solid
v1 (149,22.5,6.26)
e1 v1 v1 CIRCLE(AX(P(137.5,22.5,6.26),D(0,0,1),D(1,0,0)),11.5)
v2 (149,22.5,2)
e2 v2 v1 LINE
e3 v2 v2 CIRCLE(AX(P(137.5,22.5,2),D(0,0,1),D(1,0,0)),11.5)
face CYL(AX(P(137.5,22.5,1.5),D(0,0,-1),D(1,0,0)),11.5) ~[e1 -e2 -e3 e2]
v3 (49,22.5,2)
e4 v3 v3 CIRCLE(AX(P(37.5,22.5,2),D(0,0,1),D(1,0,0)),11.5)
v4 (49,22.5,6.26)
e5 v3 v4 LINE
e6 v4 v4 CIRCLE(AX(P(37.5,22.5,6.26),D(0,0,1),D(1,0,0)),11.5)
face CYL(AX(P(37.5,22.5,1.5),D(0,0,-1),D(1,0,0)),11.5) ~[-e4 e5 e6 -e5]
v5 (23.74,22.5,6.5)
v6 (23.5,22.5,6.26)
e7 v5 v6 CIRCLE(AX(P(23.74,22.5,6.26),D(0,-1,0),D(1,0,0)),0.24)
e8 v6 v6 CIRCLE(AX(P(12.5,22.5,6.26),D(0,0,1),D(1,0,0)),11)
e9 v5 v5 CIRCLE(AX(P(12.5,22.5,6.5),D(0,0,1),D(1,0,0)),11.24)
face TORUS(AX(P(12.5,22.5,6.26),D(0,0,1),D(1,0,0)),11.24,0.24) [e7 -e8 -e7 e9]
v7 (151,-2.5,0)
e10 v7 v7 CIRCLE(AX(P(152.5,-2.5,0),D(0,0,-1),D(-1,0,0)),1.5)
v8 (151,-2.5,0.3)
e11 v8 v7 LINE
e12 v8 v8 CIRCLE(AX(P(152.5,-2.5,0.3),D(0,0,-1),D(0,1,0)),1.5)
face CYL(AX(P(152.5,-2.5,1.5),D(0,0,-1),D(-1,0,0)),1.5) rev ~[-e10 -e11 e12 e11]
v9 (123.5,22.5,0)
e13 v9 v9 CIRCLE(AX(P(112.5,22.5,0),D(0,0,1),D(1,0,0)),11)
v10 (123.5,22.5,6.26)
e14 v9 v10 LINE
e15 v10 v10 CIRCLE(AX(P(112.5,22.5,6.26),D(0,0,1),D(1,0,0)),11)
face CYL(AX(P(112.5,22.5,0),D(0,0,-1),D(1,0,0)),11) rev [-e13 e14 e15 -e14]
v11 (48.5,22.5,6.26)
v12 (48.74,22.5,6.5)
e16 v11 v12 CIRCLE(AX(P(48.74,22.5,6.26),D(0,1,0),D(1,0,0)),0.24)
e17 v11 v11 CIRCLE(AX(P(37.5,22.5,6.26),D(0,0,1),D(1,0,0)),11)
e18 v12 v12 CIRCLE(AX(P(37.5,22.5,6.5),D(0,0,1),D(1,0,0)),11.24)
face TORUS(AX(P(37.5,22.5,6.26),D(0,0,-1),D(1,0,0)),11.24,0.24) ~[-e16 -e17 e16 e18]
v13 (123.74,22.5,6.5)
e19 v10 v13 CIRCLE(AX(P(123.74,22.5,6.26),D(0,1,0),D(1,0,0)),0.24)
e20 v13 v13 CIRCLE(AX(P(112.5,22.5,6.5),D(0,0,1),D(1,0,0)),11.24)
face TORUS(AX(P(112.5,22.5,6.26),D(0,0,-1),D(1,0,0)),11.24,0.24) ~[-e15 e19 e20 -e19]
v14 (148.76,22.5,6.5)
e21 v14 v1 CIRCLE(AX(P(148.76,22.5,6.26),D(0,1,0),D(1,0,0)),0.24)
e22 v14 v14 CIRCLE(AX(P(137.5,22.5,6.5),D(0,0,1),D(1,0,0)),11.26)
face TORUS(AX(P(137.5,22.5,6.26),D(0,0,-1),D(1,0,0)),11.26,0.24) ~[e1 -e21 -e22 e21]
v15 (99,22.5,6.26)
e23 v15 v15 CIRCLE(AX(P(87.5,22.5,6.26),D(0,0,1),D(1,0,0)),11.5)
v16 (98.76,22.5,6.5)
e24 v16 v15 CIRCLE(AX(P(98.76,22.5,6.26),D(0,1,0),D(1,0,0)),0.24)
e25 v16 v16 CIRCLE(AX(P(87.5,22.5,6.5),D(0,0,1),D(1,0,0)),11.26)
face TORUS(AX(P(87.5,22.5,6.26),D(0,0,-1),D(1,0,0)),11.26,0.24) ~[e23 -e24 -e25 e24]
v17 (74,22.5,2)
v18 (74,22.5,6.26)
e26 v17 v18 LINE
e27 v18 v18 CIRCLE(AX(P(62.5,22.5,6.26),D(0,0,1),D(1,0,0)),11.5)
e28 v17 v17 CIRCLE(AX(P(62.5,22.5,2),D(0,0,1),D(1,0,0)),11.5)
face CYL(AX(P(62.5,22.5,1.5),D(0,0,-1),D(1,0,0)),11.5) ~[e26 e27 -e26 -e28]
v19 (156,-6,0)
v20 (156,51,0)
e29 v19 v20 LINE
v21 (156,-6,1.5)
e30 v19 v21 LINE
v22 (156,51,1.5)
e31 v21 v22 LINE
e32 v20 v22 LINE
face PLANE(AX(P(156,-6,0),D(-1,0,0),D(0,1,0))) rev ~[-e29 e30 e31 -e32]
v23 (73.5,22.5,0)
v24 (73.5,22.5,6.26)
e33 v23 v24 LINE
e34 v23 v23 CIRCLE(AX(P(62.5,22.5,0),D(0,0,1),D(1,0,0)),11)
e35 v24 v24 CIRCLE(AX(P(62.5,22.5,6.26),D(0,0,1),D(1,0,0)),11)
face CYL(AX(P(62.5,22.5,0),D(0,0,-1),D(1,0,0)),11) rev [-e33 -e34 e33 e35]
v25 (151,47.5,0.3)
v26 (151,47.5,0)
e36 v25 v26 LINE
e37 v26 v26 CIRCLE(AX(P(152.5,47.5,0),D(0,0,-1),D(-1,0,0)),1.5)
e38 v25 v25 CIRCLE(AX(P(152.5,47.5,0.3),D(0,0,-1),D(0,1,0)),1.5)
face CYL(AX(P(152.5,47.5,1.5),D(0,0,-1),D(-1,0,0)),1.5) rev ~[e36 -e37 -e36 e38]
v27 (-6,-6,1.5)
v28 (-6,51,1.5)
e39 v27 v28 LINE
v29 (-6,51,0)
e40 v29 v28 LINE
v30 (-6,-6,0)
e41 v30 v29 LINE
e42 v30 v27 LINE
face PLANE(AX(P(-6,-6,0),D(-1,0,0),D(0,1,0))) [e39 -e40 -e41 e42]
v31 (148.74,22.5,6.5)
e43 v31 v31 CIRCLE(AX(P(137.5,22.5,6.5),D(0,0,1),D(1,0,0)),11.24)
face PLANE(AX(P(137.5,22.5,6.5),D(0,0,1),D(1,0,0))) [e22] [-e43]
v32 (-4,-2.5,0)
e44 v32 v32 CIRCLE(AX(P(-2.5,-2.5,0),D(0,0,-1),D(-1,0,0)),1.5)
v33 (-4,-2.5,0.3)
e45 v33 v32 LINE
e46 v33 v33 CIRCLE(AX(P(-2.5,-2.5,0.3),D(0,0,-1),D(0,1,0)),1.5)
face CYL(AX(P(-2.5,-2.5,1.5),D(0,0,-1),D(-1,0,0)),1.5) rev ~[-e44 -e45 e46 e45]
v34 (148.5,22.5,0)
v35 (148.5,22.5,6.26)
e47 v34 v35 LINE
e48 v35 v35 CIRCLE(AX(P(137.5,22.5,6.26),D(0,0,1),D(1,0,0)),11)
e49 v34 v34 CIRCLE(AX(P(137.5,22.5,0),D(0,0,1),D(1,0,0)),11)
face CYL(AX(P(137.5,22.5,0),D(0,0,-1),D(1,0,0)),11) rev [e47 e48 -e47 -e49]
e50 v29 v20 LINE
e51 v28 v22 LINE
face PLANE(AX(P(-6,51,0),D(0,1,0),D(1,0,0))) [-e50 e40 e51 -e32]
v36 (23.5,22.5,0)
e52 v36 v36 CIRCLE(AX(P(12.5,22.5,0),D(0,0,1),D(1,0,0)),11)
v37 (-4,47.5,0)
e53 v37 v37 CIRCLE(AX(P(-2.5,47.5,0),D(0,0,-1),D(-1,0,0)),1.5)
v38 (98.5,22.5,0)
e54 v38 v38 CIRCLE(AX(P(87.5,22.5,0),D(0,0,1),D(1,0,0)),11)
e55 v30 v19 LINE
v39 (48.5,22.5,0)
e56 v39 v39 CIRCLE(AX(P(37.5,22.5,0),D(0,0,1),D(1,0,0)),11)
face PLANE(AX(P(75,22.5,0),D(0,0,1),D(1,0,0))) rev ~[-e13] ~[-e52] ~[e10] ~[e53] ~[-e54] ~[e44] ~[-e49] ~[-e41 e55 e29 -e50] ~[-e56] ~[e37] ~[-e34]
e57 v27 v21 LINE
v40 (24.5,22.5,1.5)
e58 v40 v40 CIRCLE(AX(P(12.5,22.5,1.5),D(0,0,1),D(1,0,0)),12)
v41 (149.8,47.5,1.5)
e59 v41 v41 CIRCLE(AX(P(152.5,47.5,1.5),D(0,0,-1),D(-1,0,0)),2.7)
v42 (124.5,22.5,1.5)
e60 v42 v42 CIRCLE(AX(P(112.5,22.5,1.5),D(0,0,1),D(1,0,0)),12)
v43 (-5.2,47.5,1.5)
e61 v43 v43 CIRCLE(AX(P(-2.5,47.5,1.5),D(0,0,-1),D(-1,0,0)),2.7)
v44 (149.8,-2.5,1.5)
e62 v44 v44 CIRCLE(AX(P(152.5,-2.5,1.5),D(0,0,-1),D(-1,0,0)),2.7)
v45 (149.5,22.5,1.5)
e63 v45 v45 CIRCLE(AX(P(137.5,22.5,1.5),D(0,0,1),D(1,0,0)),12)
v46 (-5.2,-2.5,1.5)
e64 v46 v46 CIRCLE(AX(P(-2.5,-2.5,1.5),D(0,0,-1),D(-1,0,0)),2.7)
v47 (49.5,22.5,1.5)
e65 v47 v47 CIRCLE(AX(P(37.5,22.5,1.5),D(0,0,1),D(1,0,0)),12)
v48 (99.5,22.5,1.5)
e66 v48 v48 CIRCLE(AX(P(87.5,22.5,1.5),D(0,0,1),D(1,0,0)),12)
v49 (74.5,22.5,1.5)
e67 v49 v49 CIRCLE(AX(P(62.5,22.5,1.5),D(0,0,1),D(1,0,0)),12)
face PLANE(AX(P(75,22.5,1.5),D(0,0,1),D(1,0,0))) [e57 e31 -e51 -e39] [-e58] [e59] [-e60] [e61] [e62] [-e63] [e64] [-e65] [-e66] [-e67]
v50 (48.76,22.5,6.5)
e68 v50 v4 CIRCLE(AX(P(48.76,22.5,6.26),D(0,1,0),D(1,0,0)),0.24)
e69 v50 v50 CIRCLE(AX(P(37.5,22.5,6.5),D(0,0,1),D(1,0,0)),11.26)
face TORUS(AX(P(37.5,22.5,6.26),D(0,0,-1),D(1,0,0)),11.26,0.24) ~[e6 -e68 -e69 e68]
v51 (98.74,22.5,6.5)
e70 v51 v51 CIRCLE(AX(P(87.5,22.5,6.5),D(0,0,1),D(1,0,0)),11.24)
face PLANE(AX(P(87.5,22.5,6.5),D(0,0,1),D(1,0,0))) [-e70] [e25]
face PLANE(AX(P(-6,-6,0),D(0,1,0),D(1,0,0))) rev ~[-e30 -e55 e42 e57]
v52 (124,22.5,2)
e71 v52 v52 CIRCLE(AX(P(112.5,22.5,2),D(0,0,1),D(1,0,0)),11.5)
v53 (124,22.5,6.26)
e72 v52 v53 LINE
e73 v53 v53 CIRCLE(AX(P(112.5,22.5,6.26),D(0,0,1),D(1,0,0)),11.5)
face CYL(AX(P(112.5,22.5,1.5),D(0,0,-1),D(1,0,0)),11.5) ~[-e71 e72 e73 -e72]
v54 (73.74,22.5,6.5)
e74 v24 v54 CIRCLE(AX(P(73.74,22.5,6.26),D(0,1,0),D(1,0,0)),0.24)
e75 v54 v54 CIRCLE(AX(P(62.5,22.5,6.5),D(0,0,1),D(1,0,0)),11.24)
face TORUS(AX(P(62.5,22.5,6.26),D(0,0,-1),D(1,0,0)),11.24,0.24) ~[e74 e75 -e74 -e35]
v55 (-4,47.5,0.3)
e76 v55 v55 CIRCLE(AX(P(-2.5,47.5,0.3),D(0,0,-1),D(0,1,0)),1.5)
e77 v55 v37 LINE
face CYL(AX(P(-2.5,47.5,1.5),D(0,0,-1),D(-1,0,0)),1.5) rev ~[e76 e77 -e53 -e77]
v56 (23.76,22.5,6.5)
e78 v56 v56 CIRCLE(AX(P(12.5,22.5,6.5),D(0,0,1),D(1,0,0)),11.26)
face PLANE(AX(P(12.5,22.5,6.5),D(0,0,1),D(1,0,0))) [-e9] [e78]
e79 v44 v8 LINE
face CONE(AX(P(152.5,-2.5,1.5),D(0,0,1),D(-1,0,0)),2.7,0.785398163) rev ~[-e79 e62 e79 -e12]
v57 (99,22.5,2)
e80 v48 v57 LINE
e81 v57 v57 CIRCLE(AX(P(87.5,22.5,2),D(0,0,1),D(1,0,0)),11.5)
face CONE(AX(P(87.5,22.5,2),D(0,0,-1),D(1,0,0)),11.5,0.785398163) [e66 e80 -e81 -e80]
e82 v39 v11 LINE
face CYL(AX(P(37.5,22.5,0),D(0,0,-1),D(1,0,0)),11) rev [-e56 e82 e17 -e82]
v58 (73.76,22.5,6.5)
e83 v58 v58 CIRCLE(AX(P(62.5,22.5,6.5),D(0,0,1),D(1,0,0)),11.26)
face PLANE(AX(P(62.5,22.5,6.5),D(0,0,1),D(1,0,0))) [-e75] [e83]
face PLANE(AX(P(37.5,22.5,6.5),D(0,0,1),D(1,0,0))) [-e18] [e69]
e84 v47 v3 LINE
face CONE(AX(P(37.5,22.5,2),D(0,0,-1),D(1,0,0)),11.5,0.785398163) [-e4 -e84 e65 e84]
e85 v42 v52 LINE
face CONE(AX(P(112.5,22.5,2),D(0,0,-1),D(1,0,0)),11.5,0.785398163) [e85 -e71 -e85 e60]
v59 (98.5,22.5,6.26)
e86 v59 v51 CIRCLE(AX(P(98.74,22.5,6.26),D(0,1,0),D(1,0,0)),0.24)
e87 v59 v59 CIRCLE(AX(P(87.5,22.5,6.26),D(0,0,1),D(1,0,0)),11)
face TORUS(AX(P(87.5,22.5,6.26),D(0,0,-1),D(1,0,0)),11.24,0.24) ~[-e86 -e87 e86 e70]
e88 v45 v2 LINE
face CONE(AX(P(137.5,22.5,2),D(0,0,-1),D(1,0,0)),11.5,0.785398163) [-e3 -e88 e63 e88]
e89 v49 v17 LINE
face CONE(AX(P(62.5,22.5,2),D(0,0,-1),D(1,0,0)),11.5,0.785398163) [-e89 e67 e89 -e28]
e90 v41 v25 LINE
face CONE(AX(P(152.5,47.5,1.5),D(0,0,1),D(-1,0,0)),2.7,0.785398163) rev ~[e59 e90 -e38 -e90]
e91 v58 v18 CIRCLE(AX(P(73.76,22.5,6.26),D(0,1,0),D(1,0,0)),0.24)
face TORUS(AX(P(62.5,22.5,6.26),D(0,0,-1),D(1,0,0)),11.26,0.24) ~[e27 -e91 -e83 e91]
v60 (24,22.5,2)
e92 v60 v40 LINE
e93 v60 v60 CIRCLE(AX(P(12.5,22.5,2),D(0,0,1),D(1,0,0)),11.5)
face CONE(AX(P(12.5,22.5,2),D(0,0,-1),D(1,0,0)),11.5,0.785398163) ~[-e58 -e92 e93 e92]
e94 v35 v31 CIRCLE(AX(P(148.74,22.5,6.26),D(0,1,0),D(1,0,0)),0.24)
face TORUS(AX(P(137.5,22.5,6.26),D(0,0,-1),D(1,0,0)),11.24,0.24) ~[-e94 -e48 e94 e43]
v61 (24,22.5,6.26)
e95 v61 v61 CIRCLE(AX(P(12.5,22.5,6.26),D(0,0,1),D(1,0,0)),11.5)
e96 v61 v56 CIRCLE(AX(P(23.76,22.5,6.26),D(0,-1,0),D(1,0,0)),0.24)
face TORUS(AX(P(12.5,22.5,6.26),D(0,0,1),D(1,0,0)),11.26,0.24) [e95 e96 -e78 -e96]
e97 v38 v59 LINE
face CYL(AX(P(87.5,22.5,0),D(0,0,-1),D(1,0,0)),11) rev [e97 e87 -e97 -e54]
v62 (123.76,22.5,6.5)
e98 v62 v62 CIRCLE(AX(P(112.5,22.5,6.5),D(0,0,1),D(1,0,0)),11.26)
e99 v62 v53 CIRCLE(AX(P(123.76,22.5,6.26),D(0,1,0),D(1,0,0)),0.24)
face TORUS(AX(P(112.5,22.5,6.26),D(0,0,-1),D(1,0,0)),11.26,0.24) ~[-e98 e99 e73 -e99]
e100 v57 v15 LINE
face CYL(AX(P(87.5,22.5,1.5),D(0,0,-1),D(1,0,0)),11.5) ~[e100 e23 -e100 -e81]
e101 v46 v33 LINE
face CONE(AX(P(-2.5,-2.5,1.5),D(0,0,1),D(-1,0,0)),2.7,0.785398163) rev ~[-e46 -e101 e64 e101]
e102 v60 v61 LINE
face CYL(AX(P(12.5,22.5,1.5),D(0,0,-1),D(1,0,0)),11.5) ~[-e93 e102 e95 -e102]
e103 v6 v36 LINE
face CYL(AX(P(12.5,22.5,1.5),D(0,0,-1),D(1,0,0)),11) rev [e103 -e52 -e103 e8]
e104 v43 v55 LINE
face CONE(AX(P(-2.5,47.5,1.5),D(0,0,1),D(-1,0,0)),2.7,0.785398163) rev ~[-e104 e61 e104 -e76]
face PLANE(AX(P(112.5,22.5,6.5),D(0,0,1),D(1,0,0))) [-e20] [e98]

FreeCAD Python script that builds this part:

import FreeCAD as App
import Part
import Sketcher
Q = App.Units.Quantity


def edges_at(feature, points):
    """Names of the edges that pass closest to the given points."""
    edges = feature.Shape.Edges
    near = lambda p: min(range(len(edges)), key=lambda i: edges[i].distToShape(Part.Vertex(*p))[0])
    return sorted({f"Edge{near(p) + 1}" for p in points})

doc = App.newDocument("Part")
body = doc.addObject("PartDesign::Body", "Body")

# Sketch on XY plane
sketch1 = body.newObject("Sketcher::SketchObject", "Sketch")
sketch1.AttachmentSupport = (doc.getObject("XY_Plane"), [""])
sketch1.MapMode = "FlatFace"
sketch1.addGeometry(Part.LineSegment(App.Vector(-6, 51, 0), App.Vector(-6, -6, 0)), False)
sketch1.addGeometry(Part.LineSegment(App.Vector(-6, -6, 0), App.Vector(156, -6, 0)), False)
sketch1.addGeometry(Part.LineSegment(App.Vector(156, -6, 0), App.Vector(156, 51, 0)), False)
sketch1.addGeometry(Part.LineSegment(App.Vector(156, 51, 0), App.Vector(-6, 51, 0)), False)
sketch1.addGeometry(Part.Circle(App.Vector(12.5, 22.5, 0), App.Vector(0, 0, 1), 11), False)
sketch1.addGeometry(Part.Circle(App.Vector(37.5, 22.5, 0), App.Vector(0, 0, 1), 11), False)
sketch1.addGeometry(Part.Circle(App.Vector(62.5, 22.5, 0), App.Vector(0, 0, 1), 11), False)
sketch1.addGeometry(Part.Circle(App.Vector(87.5, 22.5, 0), App.Vector(0, 0, 1), 11), False)
sketch1.addGeometry(Part.Circle(App.Vector(112.5, 22.5, 0), App.Vector(0, 0, 1), 11), False)
sketch1.addGeometry(Part.Circle(App.Vector(137.5, 22.5, 0), App.Vector(0, 0, 1), 11), False)
sketch1.addConstraint(Sketcher.Constraint("Coincident", 0, 2, 1, 1))
sketch1.addConstraint(Sketcher.Constraint("Coincident", 1, 2, 2, 1))
sketch1.addConstraint(Sketcher.Constraint("Coincident", 2, 2, 3, 1))
sketch1.addConstraint(Sketcher.Constraint("Coincident", 3, 2, 0, 1))
sketch1.addConstraint(Sketcher.Constraint("Vertical", 0))
sketch1.addConstraint(Sketcher.Constraint("Horizontal", 1))
sketch1.addConstraint(Sketcher.Constraint("Vertical", 2))
sketch1.addConstraint(Sketcher.Constraint("Horizontal", 3))
sketch1.addConstraint(Sketcher.Constraint("Equal", 4, 5))
sketch1.addConstraint(Sketcher.Constraint("Equal", 5, 6))
sketch1.addConstraint(Sketcher.Constraint("Equal", 6, 7))
sketch1.addConstraint(Sketcher.Constraint("Equal", 7, 8))
sketch1.addConstraint(Sketcher.Constraint("Equal", 8, 9))
sketch1.addConstraint(Sketcher.Constraint("Horizontal", 4, 3, 5, 3))
sketch1.addConstraint(Sketcher.Constraint("Horizontal", 5, 3, 6, 3))
sketch1.addConstraint(Sketcher.Constraint("Horizontal", 6, 3, 7, 3))
sketch1.addConstraint(Sketcher.Constraint("Horizontal", 7, 3, 8, 3))
sketch1.addConstraint(Sketcher.Constraint("Horizontal", 8, 3, 9, 3))
sketch1.addConstraint(Sketcher.Constraint("Diameter", 4, Q("22 mm")))
sketch1.addConstraint(Sketcher.Constraint("DistanceX", 1, 1, 1, 2, Q("162 mm")))
sketch1.addConstraint(Sketcher.Constraint("DistanceY", 0, 2, 0, 1, Q("57 mm")))
sketch1.addConstraint(Sketcher.Constraint("DistanceX", 0, 2, -1, 1, Q("6 mm")))
sketch1.addConstraint(Sketcher.Constraint("DistanceY", 0, 2, -1, 1, Q("6 mm")))
sketch1.addConstraint(Sketcher.Constraint("DistanceX", 4, 3, 5, 3, Q("25 mm")))
sketch1.addConstraint(Sketcher.Constraint("DistanceX", 5, 3, 6, 3, Q("25 mm")))
sketch1.addConstraint(Sketcher.Constraint("DistanceX", 6, 3, 7, 3, Q("25 mm")))
sketch1.addConstraint(Sketcher.Constraint("DistanceX", 7, 3, 8, 3, Q("25 mm")))
sketch1.addConstraint(Sketcher.Constraint("DistanceX", 8, 3, 9, 3, Q("25 mm")))
sketch1.addConstraint(Sketcher.Constraint("DistanceX", -1, 1, 4, 3, Q("12.5 mm")))
sketch1.addConstraint(Sketcher.Constraint("DistanceY", -1, 1, 4, 3, Q("22.5 mm")))
pad1 = body.newObject("PartDesign::Pad", "Pad")
pad1.Profile = sketch1
pad1.Length = 1.5

# Sketch on XY plane
sketch2 = body.newObject("Sketcher::SketchObject", "Sketch001")
sketch2.AttachmentSupport = (doc.getObject("XY_Plane"), [""])
sketch2.MapMode = "FlatFace"
sketch2.AttachmentOffset = App.Placement(App.Vector(0, 0, 1.5), App.Rotation())
sketch2.addGeometry(Part.Circle(App.Vector(152.5, 47.5, 0), App.Vector(0, 0, 1), 1.5), False)
sketch2.addGeometry(Part.Circle(App.Vector(-2.5, 47.5, 0), App.Vector(0, 0, 1), 1.5), False)
sketch2.addGeometry(Part.Circle(App.Vector(-2.5, -2.5, 0), App.Vector(0, 0, 1), 1.5), False)
sketch2.addGeometry(Part.Circle(App.Vector(152.5, -2.5, 0), App.Vector(0, 0, 1), 1.5), False)
sketch2.addConstraint(Sketcher.Constraint("Equal", 0, 1))
sketch2.addConstraint(Sketcher.Constraint("Equal", 1, 2))
sketch2.addConstraint(Sketcher.Constraint("Equal", 2, 3))
sketch2.addConstraint(Sketcher.Constraint("Horizontal", 0, 3, 1, 3))
sketch2.addConstraint(Sketcher.Constraint("Horizontal", 2, 3, 3, 3))
sketch2.addConstraint(Sketcher.Constraint("Vertical", 1, 3, 2, 3))
sketch2.addConstraint(Sketcher.Constraint("Vertical", 0, 3, 3, 3))
sketch2.addConstraint(Sketcher.Constraint("Diameter", 0, Q("3 mm")))
sketch2.addConstraint(Sketcher.Constraint("DistanceX", 1, 3, 0, 3, Q("155 mm")))
sketch2.addConstraint(Sketcher.Constraint("DistanceY", 2, 3, 1, 3, Q("50 mm")))
sketch2.addConstraint(Sketcher.Constraint("DistanceX", -1, 1, 0, 3, Q("152.5 mm")))
sketch2.addConstraint(Sketcher.Constraint("DistanceY", -1, 1, 0, 3, Q("47.5 mm")))
doc.recompute()
hole = body.newObject("PartDesign::Hole", "Hole")
hole.Profile = sketch2
hole.ThreadType = "None"
hole.Diameter = 3
hole.DepthType = "Dimension"
hole.Depth = 25
hole.DrillPoint = "Flat"
hole.HoleCutType = "Countersink"
hole.HoleCutDiameter = 5.4
hole.HoleCutCountersinkAngle = 90

# Sketch on XY plane
sketch3 = body.newObject("Sketcher::SketchObject", "Sketch002")
sketch3.AttachmentSupport = (doc.getObject("XY_Plane"), [""])
sketch3.MapMode = "FlatFace"
sketch3.AttachmentOffset = App.Placement(App.Vector(0, 0, 1.5), App.Rotation())
sketch3.addGeometry(Part.Circle(App.Vector(12.5, 22.5, 0), App.Vector(0, 0, 1), 11.5), False)
sketch3.addGeometry(Part.Circle(App.Vector(12.5, 22.5, 0), App.Vector(0, 0, 1), 11), False)
sketch3.addGeometry(Part.Circle(App.Vector(37.5, 22.5, 0), App.Vector(0, 0, 1), 11.5), False)
sketch3.addGeometry(Part.Circle(App.Vector(37.5, 22.5, 0), App.Vector(0, 0, 1), 11), False)
sketch3.addGeometry(Part.Circle(App.Vector(62.5, 22.5, 0), App.Vector(0, 0, 1), 11.5), False)
sketch3.addGeometry(Part.Circle(App.Vector(62.5, 22.5, 0), App.Vector(0, 0, 1), 11), False)
sketch3.addGeometry(Part.Circle(App.Vector(87.5, 22.5, 0), App.Vector(0, 0, 1), 11.5), False)
sketch3.addGeometry(Part.Circle(App.Vector(87.5, 22.5, 0), App.Vector(0, 0, 1), 11), False)
sketch3.addGeometry(Part.Circle(App.Vector(112.5, 22.5, 0), App.Vector(0, 0, 1), 11.5), False)
sketch3.addGeometry(Part.Circle(App.Vector(112.5, 22.5, 0), App.Vector(0, 0, 1), 11), False)
sketch3.addGeometry(Part.Circle(App.Vector(137.5, 22.5, 0), App.Vector(0, 0, 1), 11.5), False)
sketch3.addGeometry(Part.Circle(App.Vector(137.5, 22.5, 0), App.Vector(0, 0, 1), 11), False)
sketch3.addConstraint(Sketcher.Constraint("Coincident", 1, 3, 0, 3))
sketch3.addConstraint(Sketcher.Constraint("Coincident", 3, 3, 2, 3))
sketch3.addConstraint(Sketcher.Constraint("Coincident", 5, 3, 4, 3))
sketch3.addConstraint(Sketcher.Constraint("Coincident", 7, 3, 6, 3))
sketch3.addConstraint(Sketcher.Constraint("Coincident", 9, 3, 8, 3))
sketch3.addConstraint(Sketcher.Constraint("Coincident", 11, 3, 10, 3))
sketch3.addConstraint(Sketcher.Constraint("Equal", 0, 2))
sketch3.addConstraint(Sketcher.Constraint("Equal", 1, 3))
sketch3.addConstraint(Sketcher.Constraint("Equal", 2, 4))
sketch3.addConstraint(Sketcher.Constraint("Equal", 3, 5))
sketch3.addConstraint(Sketcher.Constraint("Equal", 4, 6))
sketch3.addConstraint(Sketcher.Constraint("Equal", 5, 7))
sketch3.addConstraint(Sketcher.Constraint("Equal", 6, 8))
sketch3.addConstraint(Sketcher.Constraint("Equal", 7, 9))
sketch3.addConstraint(Sketcher.Constraint("Equal", 8, 10))
sketch3.addConstraint(Sketcher.Constraint("Equal", 9, 11))
sketch3.addConstraint(Sketcher.Constraint("Horizontal", 1, 3, 2, 3))
sketch3.addConstraint(Sketcher.Constraint("Horizontal", 3, 3, 4, 3))
sketch3.addConstraint(Sketcher.Constraint("Horizontal", 5, 3, 6, 3))
sketch3.addConstraint(Sketcher.Constraint("Horizontal", 7, 3, 8, 3))
sketch3.addConstraint(Sketcher.Constraint("Horizontal", 9, 3, 10, 3))
sketch3.addConstraint(Sketcher.Constraint("Diameter", 0, Q("23 mm")))
sketch3.addConstraint(Sketcher.Constraint("Diameter", 1, Q("22 mm")))
sketch3.addConstraint(Sketcher.Constraint("DistanceX", 0, 3, 2, 3, Q("25 mm")))
sketch3.addConstraint(Sketcher.Constraint("DistanceX", 2, 3, 4, 3, Q("25 mm")))
sketch3.addConstraint(Sketcher.Constraint("DistanceX", 4, 3, 6, 3, Q("25 mm")))
sketch3.addConstraint(Sketcher.Constraint("DistanceX", 6, 3, 8, 3, Q("25 mm")))
sketch3.addConstraint(Sketcher.Constraint("DistanceX", 8, 3, 10, 3, Q("25 mm")))
sketch3.addConstraint(Sketcher.Constraint("DistanceX", -1, 1, 0, 3, Q("12.5 mm")))
sketch3.addConstraint(Sketcher.Constraint("DistanceY", -1, 1, 0, 3, Q("22.5 mm")))
pad2 = body.newObject("PartDesign::Pad", "Pad001")
pad2.Profile = sketch3
pad2.Length = 5
doc.recompute()

fillet = body.newObject("PartDesign::Fillet", "Fillet")
fillet.Base = (pad2, edges_at(pad2, [
    (26, 22.5, 6.5),
    (26.5, 22.5, 6.5),
    (51, 22.5, 6.5),
    (51.5, 22.5, 6.5),
    (76, 22.5, 6.5),
    (76.5, 22.5, 6.5),
    (101, 22.5, 6.5),
    (101.5, 22.5, 6.5),
    (126, 22.5, 6.5),
    (126.5, 22.5, 6.5),
    (1, 22.5, 6.5),
    (1.5, 22.5, 6.5),
]))
fillet.Radius = 0.24
doc.recompute()

chamfer = body.newObject("PartDesign::Chamfer", "Chamfer")
chamfer.Base = (fillet, edges_at(fillet, [
    (24, 22.5, 3.88),
    (1, 22.5, 6.26),
    (1, 22.5, 1.5),
    (49, 22.5, 3.88),
    (26, 22.5, 6.26),
    (26, 22.5, 1.5),
    (74, 22.5, 3.88),
    (51, 22.5, 6.26),
    (51, 22.5, 1.5),
    (99, 22.5, 3.88),
    (76, 22.5, 6.26),
    (76, 22.5, 1.5),
    (124, 22.5, 3.88),
    (101, 22.5, 6.26),
    (101, 22.5, 1.5),
    (149, 22.5, 3.88),
    (126, 22.5, 6.26),
    (126, 22.5, 1.5),
]))
chamfer.Size = 0.5

doc.recompute()
